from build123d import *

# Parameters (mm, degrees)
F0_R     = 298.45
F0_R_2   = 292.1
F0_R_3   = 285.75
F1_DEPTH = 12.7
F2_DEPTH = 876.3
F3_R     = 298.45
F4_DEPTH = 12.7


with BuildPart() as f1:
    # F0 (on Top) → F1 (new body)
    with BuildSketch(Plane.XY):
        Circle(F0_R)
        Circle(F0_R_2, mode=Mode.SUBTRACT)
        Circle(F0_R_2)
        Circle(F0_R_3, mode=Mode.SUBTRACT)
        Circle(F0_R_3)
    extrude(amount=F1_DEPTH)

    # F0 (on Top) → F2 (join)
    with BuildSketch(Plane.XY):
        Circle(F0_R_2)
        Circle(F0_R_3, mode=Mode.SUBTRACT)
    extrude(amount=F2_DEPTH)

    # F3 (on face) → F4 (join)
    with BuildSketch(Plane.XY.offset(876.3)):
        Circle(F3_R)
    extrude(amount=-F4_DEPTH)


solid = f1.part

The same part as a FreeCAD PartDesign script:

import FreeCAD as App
import Part
import Sketcher
from FreeCAD import Vector
Q = App.Units.Quantity

doc = App.newDocument("Part")
body = doc.addObject("PartDesign::Body", "Body")

# Sketch on XY plane
sketch1 = body.newObject("Sketcher::SketchObject", "Sketch")
sketch1.AttachmentSupport = (doc.getObject("XY_Plane"), [""])
sketch1.MapMode = "FlatFace"
sketch1.addGeometry(Part.Circle(Vector(0, 0, 0), Vector(0, 0, 1), 298), False)
sketch1.addConstraint([
    Sketcher.Constraint("Coincident", 0, 3, -1, 1),
    Sketcher.Constraint("Diameter", 0, Q("23.5 in")),
])
pad1 = body.newObject("PartDesign::Pad", "Pad")
pad1.Profile = sketch1
pad1.Length = Q("0.5 in")

# Sketch on XY plane
sketch2 = body.newObject("Sketcher::SketchObject", "Sketch001")
sketch2.AttachmentSupport = (doc.getObject("XY_Plane"), [""])
sketch2.MapMode = "FlatFace"
sketch2.addGeometry([
    Part.Circle(Vector(0, 0, 0), Vector(0, 0, 1), 292),
    Part.Circle(Vector(0, 0, 0), Vector(0, 0, 1), 286),
], False)
sketch2.addConstraint([
    Sketcher.Constraint("Coincident", 0, 3, -1, 1),
    Sketcher.Constraint("Coincident", 1, 3, -1, 1),
    Sketcher.Constraint("Diameter", 0, Q("23 in")),
    Sketcher.Constraint("Diameter", 1, Q("22.5 in")),
])
pad2 = body.newObject("PartDesign::Pad", "Pad001")
pad2.Profile = sketch2
pad2.Length = Q("34.5 in")

# Sketch on XY plane
sketch3 = body.newObject("Sketcher::SketchObject", "Sketch002")
sketch3.AttachmentSupport = (doc.getObject("XY_Plane"), [""])
sketch3.MapMode = "FlatFace"
sketch3.AttachmentOffset = App.Placement(Vector(0, 0, 34.5 * 25.4), App.Rotation())
sketch3.addGeometry(Part.Circle(Vector(0, 0, 0), Vector(0, 0, 1), 298), False)
sketch3.addConstraint([
    Sketcher.Constraint("Coincident", 0, 3, -1, 1),
    Sketcher.Constraint("Diameter", 0, Q("23.5 in")),
])
pad3 = body.newObject("PartDesign::Pad", "Pad002")
pad3.Profile = sketch3
pad3.Length = Q("0.5 in")
pad3.Reversed = True

doc.recompute()
